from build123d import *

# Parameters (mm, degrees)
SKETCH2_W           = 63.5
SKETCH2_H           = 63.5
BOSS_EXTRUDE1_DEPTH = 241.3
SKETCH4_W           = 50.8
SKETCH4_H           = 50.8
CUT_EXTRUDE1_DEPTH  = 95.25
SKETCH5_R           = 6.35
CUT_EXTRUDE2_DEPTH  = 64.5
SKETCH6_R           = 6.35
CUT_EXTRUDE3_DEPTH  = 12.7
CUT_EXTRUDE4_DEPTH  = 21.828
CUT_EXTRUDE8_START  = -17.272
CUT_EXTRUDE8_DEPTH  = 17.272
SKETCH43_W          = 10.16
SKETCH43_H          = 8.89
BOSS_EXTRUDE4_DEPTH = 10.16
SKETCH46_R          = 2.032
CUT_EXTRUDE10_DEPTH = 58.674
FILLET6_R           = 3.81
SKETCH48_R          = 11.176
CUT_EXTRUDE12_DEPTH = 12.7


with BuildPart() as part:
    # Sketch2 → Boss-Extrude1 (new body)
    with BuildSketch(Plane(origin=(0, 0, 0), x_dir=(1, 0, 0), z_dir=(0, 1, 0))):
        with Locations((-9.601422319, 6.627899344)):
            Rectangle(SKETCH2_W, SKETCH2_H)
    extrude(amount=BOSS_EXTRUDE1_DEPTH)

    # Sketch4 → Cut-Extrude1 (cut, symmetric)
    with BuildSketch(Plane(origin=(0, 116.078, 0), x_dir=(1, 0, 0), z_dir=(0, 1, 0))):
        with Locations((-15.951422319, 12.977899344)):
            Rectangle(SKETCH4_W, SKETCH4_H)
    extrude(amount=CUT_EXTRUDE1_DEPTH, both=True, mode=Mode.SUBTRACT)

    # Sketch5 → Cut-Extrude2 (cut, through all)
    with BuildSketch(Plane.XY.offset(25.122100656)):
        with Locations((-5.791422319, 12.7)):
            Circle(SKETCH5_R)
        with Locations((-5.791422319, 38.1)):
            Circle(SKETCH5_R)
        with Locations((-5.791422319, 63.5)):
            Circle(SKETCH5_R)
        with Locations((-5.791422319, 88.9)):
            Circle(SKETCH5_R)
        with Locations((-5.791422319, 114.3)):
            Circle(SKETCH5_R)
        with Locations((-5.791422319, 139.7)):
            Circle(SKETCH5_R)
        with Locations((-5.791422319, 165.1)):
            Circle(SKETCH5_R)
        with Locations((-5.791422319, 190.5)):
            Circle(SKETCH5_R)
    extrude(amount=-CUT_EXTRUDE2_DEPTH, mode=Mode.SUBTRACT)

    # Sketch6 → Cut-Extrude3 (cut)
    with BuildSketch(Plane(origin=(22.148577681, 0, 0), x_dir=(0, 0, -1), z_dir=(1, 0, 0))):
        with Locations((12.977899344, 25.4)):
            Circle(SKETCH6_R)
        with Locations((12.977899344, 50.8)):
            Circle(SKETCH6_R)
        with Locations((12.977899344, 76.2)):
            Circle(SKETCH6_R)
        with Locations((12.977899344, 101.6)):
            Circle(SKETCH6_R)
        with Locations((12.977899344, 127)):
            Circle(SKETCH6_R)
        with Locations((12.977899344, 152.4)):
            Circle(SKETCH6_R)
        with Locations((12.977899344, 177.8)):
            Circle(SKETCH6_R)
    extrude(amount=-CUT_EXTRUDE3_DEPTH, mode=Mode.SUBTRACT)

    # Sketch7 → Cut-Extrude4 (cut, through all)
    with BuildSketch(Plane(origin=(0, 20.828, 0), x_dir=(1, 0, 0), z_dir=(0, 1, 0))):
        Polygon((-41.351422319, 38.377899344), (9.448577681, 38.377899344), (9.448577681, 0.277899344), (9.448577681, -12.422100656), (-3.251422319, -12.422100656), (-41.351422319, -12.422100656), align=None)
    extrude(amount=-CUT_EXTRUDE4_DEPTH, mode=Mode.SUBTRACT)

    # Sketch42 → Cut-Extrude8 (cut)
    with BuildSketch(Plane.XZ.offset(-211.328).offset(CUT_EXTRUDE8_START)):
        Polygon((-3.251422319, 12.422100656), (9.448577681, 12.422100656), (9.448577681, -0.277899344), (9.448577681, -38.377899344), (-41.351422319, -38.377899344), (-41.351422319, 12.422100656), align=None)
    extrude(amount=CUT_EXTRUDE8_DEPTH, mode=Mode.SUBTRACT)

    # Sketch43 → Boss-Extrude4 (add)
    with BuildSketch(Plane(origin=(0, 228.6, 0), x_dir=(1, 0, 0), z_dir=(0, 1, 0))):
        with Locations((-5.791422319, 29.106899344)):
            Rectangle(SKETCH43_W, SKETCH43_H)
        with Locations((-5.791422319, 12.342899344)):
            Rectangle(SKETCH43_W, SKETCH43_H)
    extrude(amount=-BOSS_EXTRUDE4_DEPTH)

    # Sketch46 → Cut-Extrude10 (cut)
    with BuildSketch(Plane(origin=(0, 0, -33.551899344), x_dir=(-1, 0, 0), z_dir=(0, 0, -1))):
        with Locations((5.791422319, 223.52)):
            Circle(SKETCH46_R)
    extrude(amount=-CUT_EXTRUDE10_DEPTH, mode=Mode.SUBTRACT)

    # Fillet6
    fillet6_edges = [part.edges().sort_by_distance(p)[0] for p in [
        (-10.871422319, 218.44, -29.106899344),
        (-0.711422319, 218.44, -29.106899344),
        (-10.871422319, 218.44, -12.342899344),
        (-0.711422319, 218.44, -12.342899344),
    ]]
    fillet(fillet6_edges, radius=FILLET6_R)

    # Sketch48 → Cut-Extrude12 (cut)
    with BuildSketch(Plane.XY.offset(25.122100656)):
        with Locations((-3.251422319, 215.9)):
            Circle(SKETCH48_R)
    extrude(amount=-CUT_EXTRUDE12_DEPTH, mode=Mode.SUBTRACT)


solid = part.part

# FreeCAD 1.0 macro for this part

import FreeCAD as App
import Part
import Sketcher

V = App.Vector
Q = App.Units.Quantity


def edges_at(feature, points):
    """Names of the edges that pass closest to the given points."""
    edges = feature.Shape.Edges
    near = lambda p: min(range(len(edges)), key=lambda i: edges[i].distToShape(Part.Vertex(*p))[0])
    return sorted({f"Edge{near(p) + 1}" for p in points})

doc = App.newDocument("Part")
params = doc.addObject("Spreadsheet::Sheet", "Params")
for row, (alias, value) in enumerate([
    ("sketch1_width", "2.5 in"),
    ("pad1_length", "9.5 in"),
    ("sketch2_width", "2 in"),
    ("pocket1_length", "7.5 in"),
    ("sketch3_diameter", "0.5 in"),
    ("sketch4_diameter", "0.5 in"),
    ("pocket3_length", "0.5 in"),
    ("sketch5_width", "2 in"),
    ("sketch6_width", "2 in"),
    ("pocket5_length", "0.68 in"),
    ("sketch7_width", "0.4 in"),
    ("sketch7_height", "0.35 in"),
    ("pad2_length", "0.4 in"),
    ("sketch8_diameter", "0.16 in"),
    ("pocket6_length", "2.31 in"),
    ("fillet_radius", "0.15 in"),
    ("sketch9_diameter", "0.88 in"),
    ("pocket7_length", "0.5 in"),
], start=1):
    params.set(f"A{row}", alias)
    params.set(f"B{row}", "=" + value)
    params.setAlias(f"B{row}", alias)

body = doc.addObject("PartDesign::Body", "Body")

# Sketch on XZ plane
sketch1 = doc.addObject("Sketcher::SketchObject", "Sketch")
body.addObject(sketch1)
sketch1.AttachmentSupport = (doc.XZ_Plane, [""])
sketch1.MapMode = "FlatFace"
sketch1.addGeometry([
    Part.LineSegment(V(-41, -38, 0), V(-41, 25, 0)),
    Part.LineSegment(V(-41, 25, 0), V(22, 25, 0)),
    Part.LineSegment(V(22, 25, 0), V(22, -38, 0)),
    Part.LineSegment(V(22, -38, 0), V(-41, -38, 0)),
], False)
sketch1.addConstraint([
    Sketcher.Constraint("Coincident", 0, 2, 1, 1),
    Sketcher.Constraint("Coincident", 1, 2, 2, 1),
    Sketcher.Constraint("Coincident", 2, 2, 3, 1),
    Sketcher.Constraint("Coincident", 3, 2, 0, 1),
    Sketcher.Constraint("Vertical", 0),
    Sketcher.Constraint("Horizontal", 1),
    Sketcher.Constraint("Vertical", 2),
    Sketcher.Constraint("Horizontal", 3),
    Sketcher.Constraint("Equal", 3, 0),
    Sketcher.Constraint("DistanceX", 1, 1, 1, 2, Q("2.5 in")),
    Sketcher.Constraint("DistanceY", -1, 1, 0, 2, Q("25.122101 mm")),
    Sketcher.Constraint("DistanceX", 0, 2, -1, 1, Q("41.351422 mm")),
])
sketch1.setExpression("Constraints[9]", "Params.sketch1_width")
pad1 = doc.addObject("PartDesign::Pad", "Pad")
body.addObject(pad1)
pad1.Profile = sketch1
pad1.setExpression("Length", "Params.pad1_length")
pad1.Reversed = True

# Sketch on XZ plane
sketch2 = doc.addObject("Sketcher::SketchObject", "Sketch001")
body.addObject(sketch2)
sketch2.AttachmentSupport = (doc.XZ_Plane, [""])
sketch2.MapMode = "FlatFace"
sketch2.AttachmentOffset = App.Placement(V(0, 0, -4.57 * 25.4), App.Rotation())
sketch2.addGeometry([
    Part.LineSegment(V(-41, -38, 0), V(-41, 12, 0)),
    Part.LineSegment(V(-41, 12, 0), V(9, 12, 0)),
    Part.LineSegment(V(9, 12, 0), V(9, -38, 0)),
    Part.LineSegment(V(9, -38, 0), V(-41, -38, 0)),
], False)
sketch2.addConstraint([
    Sketcher.Constraint("Coincident", 0, 2, 1, 1),
    Sketcher.Constraint("Coincident", 1, 2, 2, 1),
    Sketcher.Constraint("Coincident", 2, 2, 3, 1),
    Sketcher.Constraint("Coincident", 3, 2, 0, 1),
    Sketcher.Constraint("Vertical", 0),
    Sketcher.Constraint("Horizontal", 1),
    Sketcher.Constraint("Vertical", 2),
    Sketcher.Constraint("Horizontal", 3),
    Sketcher.Constraint("Equal", 3, 0),
    Sketcher.Constraint("DistanceX", 1, 1, 1, 2, Q("2 in")),
    Sketcher.Constraint("DistanceY", -1, 1, 0, 2, Q("12.422101 mm")),
    Sketcher.Constraint("DistanceX", 0, 2, -1, 1, Q("41.351422 mm")),
])
sketch2.setExpression("Constraints[9]", "Params.sketch2_width")
pocket1 = doc.addObject("PartDesign::Pocket", "Pocket")
body.addObject(pocket1)
pocket1.Profile = sketch2
pocket1.setExpression("Length", "Params.pocket1_length")
pocket1.Midplane = True

# Sketch on XY plane
sketch3 = doc.addObject("Sketcher::SketchObject", "Sketch002")
body.addObject(sketch3)
sketch3.AttachmentSupport = (doc.XY_Plane, [""])
sketch3.MapMode = "FlatFace"
sketch3.AttachmentOffset = App.Placement(V(0, 0, 25.122101), App.Rotation())
sketch3.addGeometry([
    Part.Circle(V(-6, 13, 0), V(0, 0, 1), 6),  # 0
    Part.Circle(V(-6, 38, 0), V(0, 0, 1), 6),  # 1
    Part.Circle(V(-6, 64, 0), V(0, 0, 1), 6),  # 2
    Part.Circle(V(-6, 89, 0), V(0, 0, 1), 6),  # 3
    Part.Circle(V(-6, 114, 0), V(0, 0, 1), 6),  # 4
    Part.Circle(V(-6, 140, 0), V(0, 0, 1), 6),  # 5
    Part.Circle(V(-6, 165, 0), V(0, 0, 1), 6),  # 6
    Part.Circle(V(-6, 190, 0), V(0, 0, 1), 6),  # 7
], False)
sketch3.addConstraint([
    Sketcher.Constraint("Equal", 0, 1),
    Sketcher.Constraint("Equal", 1, 2),
    Sketcher.Constraint("Equal", 2, 3),
    Sketcher.Constraint("Equal", 3, 4),
    Sketcher.Constraint("Equal", 4, 5),
    Sketcher.Constraint("Equal", 5, 6),
    Sketcher.Constraint("Equal", 6, 7),
    Sketcher.Constraint("Vertical", 0, 3, 1, 3),
    Sketcher.Constraint("Vertical", 1, 3, 2, 3),
    Sketcher.Constraint("Vertical", 2, 3, 3, 3),
    Sketcher.Constraint("Vertical", 3, 3, 4, 3),
    Sketcher.Constraint("Vertical", 4, 3, 5, 3),
    Sketcher.Constraint("Vertical", 5, 3, 6, 3),
    Sketcher.Constraint("Vertical", 6, 3, 7, 3),
    Sketcher.Constraint("Diameter", 0, Q("0.5 in")),
    Sketcher.Constraint("DistanceY", 0, 3, 1, 3, Q("1 in")),
    Sketcher.Constraint("DistanceY", 1, 3, 2, 3, Q("1 in")),
    Sketcher.Constraint("DistanceY", 2, 3, 3, 3, Q("1 in")),
    Sketcher.Constraint("DistanceY", 3, 3, 4, 3, Q("1 in")),
    Sketcher.Constraint("DistanceY", 4, 3, 5, 3, Q("1 in")),
    Sketcher.Constraint("DistanceY", 5, 3, 6, 3, Q("1 in")),
    Sketcher.Constraint("DistanceY", 6, 3, 7, 3, Q("1 in")),
    Sketcher.Constraint("DistanceY", -1, 1, 0, 3, Q("0.5 in")),
    Sketcher.Constraint("DistanceX", 0, 3, -1, 1, Q("5.791422 mm")),
])
sketch3.setExpression("Constraints[14]", "Params.sketch3_diameter")
pocket2 = doc.addObject("PartDesign::Pocket", "Pocket001")
body.addObject(pocket2)
pocket2.Profile = sketch3
pocket2.Type = "ThroughAll"

# Sketch on YZ plane
sketch4 = doc.addObject("Sketcher::SketchObject", "Sketch003")
body.addObject(sketch4)
sketch4.AttachmentSupport = (doc.YZ_Plane, [""])
sketch4.MapMode = "FlatFace"
sketch4.AttachmentOffset = App.Placement(V(0, 0, 22.148578), App.Rotation())
sketch4.addGeometry([
    Part.Circle(V(25, -13, 0), V(0, 0, 1), 6),  # 0
    Part.Circle(V(51, -13, 0), V(0, 0, 1), 6),  # 1
    Part.Circle(V(76, -13, 0), V(0, 0, 1), 6),  # 2
    Part.Circle(V(102, -13, 0), V(0, 0, 1), 6),  # 3
    Part.Circle(V(127, -13, 0), V(0, 0, 1), 6),  # 4
    Part.Circle(V(152, -13, 0), V(0, 0, 1), 6),  # 5
    Part.Circle(V(178, -13, 0), V(0, 0, 1), 6),  # 6
], False)
sketch4.addConstraint([
    Sketcher.Constraint("Equal", 0, 1),
    Sketcher.Constraint("Equal", 1, 2),
    Sketcher.Constraint("Equal", 2, 3),
    Sketcher.Constraint("Equal", 3, 4),
    Sketcher.Constraint("Equal", 4, 5),
    Sketcher.Constraint("Equal", 5, 6),
    Sketcher.Constraint("Horizontal", 0, 3, 1, 3),
    Sketcher.Constraint("Horizontal", 1, 3, 2, 3),
    Sketcher.Constraint("Horizontal", 2, 3, 3, 3),
    Sketcher.Constraint("Horizontal", 3, 3, 4, 3),
    Sketcher.Constraint("Horizontal", 4, 3, 5, 3),
    Sketcher.Constraint("Horizontal", 5, 3, 6, 3),
    Sketcher.Constraint("Diameter", 0, Q("0.5 in")),
    Sketcher.Constraint("DistanceX", -1, 1, 0, 3, Q("1 in")),
    Sketcher.Constraint("DistanceX", -1, 1, 1, 3, Q("2 in")),
    Sketcher.Constraint("DistanceX", -1, 1, 2, 3, Q("3 in")),
    Sketcher.Constraint("DistanceX", -1, 1, 3, 3, Q("4 in")),
    Sketcher.Constraint("DistanceX", -1, 1, 4, 3, Q("5 in")),
    Sketcher.Constraint("DistanceX", -1, 1, 5, 3, Q("6 in")),
    Sketcher.Constraint("DistanceX", -1, 1, 6, 3, Q("7 in")),
    Sketcher.Constraint("DistanceY", 0, 3, -1, 1, Q("12.977899 mm")),
])
sketch4.setExpression("Constraints[12]", "Params.sketch4_diameter")
pocket3 = doc.addObject("PartDesign::Pocket", "Pocket002")
body.addObject(pocket3)
pocket3.Profile = sketch4
pocket3.setExpression("Length", "Params.pocket3_length")

# Sketch on XZ plane
sketch5 = doc.addObject("Sketcher::SketchObject", "Sketch004")
body.addObject(sketch5)
sketch5.AttachmentSupport = (doc.XZ_Plane, [""])
sketch5.MapMode = "FlatFace"
sketch5.AttachmentOffset = App.Placement(V(0, 0, -0.82 * 25.4), App.Rotation())
sketch5.addGeometry([
    Part.LineSegment(V(9, -38, 0), V(-41, -38, 0)),
    Part.LineSegment(V(-41, -38, 0), V(-41, 12, 0)),
    Part.LineSegment(V(-41, 12, 0), V(9, 12, 0)),
    Part.LineSegment(V(9, 12, 0), V(9, -38, 0)),
], False)
sketch5.addConstraint([
    Sketcher.Constraint("Coincident", 0, 2, 1, 1),
    Sketcher.Constraint("Coincident", 1, 2, 2, 1),
    Sketcher.Constraint("Coincident", 2, 2, 3, 1),
    Sketcher.Constraint("Coincident", 3, 2, 0, 1),
    Sketcher.Constraint("Horizontal", 0),
    Sketcher.Constraint("Vertical", 1),
    Sketcher.Constraint("Horizontal", 2),
    Sketcher.Constraint("Vertical", 3),
    Sketcher.Constraint("Equal", 2, 1),
    Sketcher.Constraint("DistanceX", 0, 2, 0, 1, Q("2 in")),
    Sketcher.Constraint("DistanceY", 0, 2, -1, 1, Q("38.377899 mm")),
    Sketcher.Constraint("DistanceX", 0, 2, -1, 1, Q("41.351422 mm")),
])
sketch5.setExpression("Constraints[9]", "Params.sketch5_width")
pocket4 = doc.addObject("PartDesign::Pocket", "Pocket003")
body.addObject(pocket4)
pocket4.Profile = sketch5
pocket4.Type = "ThroughAll"
pocket4.Reversed = True

# Sketch on XZ plane
sketch6 = doc.addObject("Sketcher::SketchObject", "Sketch005")
body.addObject(sketch6)
sketch6.AttachmentSupport = (doc.XZ_Plane, [""])
sketch6.MapMode = "FlatFace"
sketch6.AttachmentOffset = App.Placement(V(0, 0, -9 * 25.4), App.Rotation())
sketch6.addGeometry([
    Part.LineSegment(V(9, 12, 0), V(-41, 12, 0)),
    Part.LineSegment(V(-41, 12, 0), V(-41, -38, 0)),
    Part.LineSegment(V(-41, -38, 0), V(9, -38, 0)),
    Part.LineSegment(V(9, -38, 0), V(9, 12, 0)),
], False)
sketch6.addConstraint([
    Sketcher.Constraint("Coincident", 0, 2, 1, 1),
    Sketcher.Constraint("Coincident", 1, 2, 2, 1),
    Sketcher.Constraint("Coincident", 2, 2, 3, 1),
    Sketcher.Constraint("Coincident", 3, 2, 0, 1),
    Sketcher.Constraint("Horizontal", 0),
    Sketcher.Constraint("Vertical", 1),
    Sketcher.Constraint("Horizontal", 2),
    Sketcher.Constraint("Vertical", 3),
    Sketcher.Constraint("Equal", 2, 1),
    Sketcher.Constraint("DistanceX", 0, 2, 0, 1, Q("2 in")),
    Sketcher.Constraint("DistanceY", -1, 1, 0, 2, Q("12.422101 mm")),
    Sketcher.Constraint("DistanceX", 0, 2, -1, 1, Q("41.351422 mm")),
])
sketch6.setExpression("Constraints[9]", "Params.sketch6_width")
pocket5 = doc.addObject("PartDesign::Pocket", "Pocket004")
body.addObject(pocket5)
pocket5.Profile = sketch6
pocket5.setExpression("Length", "Params.pocket5_length")
pocket5.Reversed = True

# Sketch on XZ plane
sketch7 = doc.addObject("Sketcher::SketchObject", "Sketch006")
body.addObject(sketch7)
sketch7.AttachmentSupport = (doc.XZ_Plane, [""])
sketch7.MapMode = "FlatFace"
sketch7.AttachmentOffset = App.Placement(V(0, 0, -9 * 25.4), App.Rotation())
sketch7.addGeometry([
    Part.LineSegment(V(-11, -34, 0), V(-11, -25, 0)),  # 0
    Part.LineSegment(V(-11, -25, 0), V(-1, -25, 0)),  # 1
    Part.LineSegment(V(-1, -25, 0), V(-1, -34, 0)),  # 2
    Part.LineSegment(V(-1, -34, 0), V(-11, -34, 0)),  # 3
    Part.LineSegment(V(-11, -17, 0), V(-11, -8, 0)),  # 4
    Part.LineSegment(V(-11, -8, 0), V(-1, -8, 0)),  # 5
    Part.LineSegment(V(-1, -8, 0), V(-1, -17, 0)),  # 6
    Part.LineSegment(V(-1, -17, 0), V(-11, -17, 0)),  # 7
], False)
sketch7.addConstraint([
    Sketcher.Constraint("Coincident", 0, 2, 1, 1),
    Sketcher.Constraint("Coincident", 1, 2, 2, 1),
    Sketcher.Constraint("Coincident", 2, 2, 3, 1),
    Sketcher.Constraint("Coincident", 3, 2, 0, 1),
    Sketcher.Constraint("Coincident", 4, 2, 5, 1),
    Sketcher.Constraint("Coincident", 5, 2, 6, 1),
    Sketcher.Constraint("Coincident", 6, 2, 7, 1),
    Sketcher.Constraint("Coincident", 7, 2, 4, 1),
    Sketcher.Constraint("Vertical", 0),
    Sketcher.Constraint("Horizontal", 1),
    Sketcher.Constraint("Vertical", 2),
    Sketcher.Constraint("Horizontal", 3),
    Sketcher.Constraint("Vertical", 4),
    Sketcher.Constraint("Horizontal", 5),
    Sketcher.Constraint("Vertical", 6),
    Sketcher.Constraint("Horizontal", 7),
    Sketcher.Constraint("Vertical", 3, 2, 4, 2),
    Sketcher.Constraint("Vertical", 2, 2, 5, 2),
    Sketcher.Constraint("Equal", 2, 4),
    Sketcher.Constraint("DistanceX", 1, 1, 1, 2, Q("0.4 in")),
    Sketcher.Constraint("DistanceY", 0, 1, 0, 2, Q("0.35 in")),
    Sketcher.Constraint("DistanceY", 0, 2, 4, 2, Q("0.66 in")),
    Sketcher.Constraint("DistanceY", 0, 2, -1, 1, Q("24.661899 mm")),
    Sketcher.Constraint("DistanceX", 0, 2, -1, 1, Q("10.871422 mm")),
])
sketch7.setExpression("Constraints[19]", "Params.sketch7_width")
sketch7.setExpression("Constraints[20]", "Params.sketch7_height")
pad2 = doc.addObject("PartDesign::Pad", "Pad001")
body.addObject(pad2)
pad2.Profile = sketch7
pad2.setExpression("Length", "Params.pad2_length")

# Sketch on XY plane
sketch8 = doc.addObject("Sketcher::SketchObject", "Sketch007")
body.addObject(sketch8)
sketch8.AttachmentSupport = (doc.XY_Plane, [""])
sketch8.MapMode = "FlatFace"
sketch8.AttachmentOffset = App.Placement(V(0, 0, -33.551899), App.Rotation())
sketch8.addGeometry(Part.Circle(V(-5.8, 223.5, 0), V(0, 0, 1), 2), False)
sketch8.addConstraint([
    Sketcher.Constraint("Diameter", 0, Q("0.16 in")),
    Sketcher.Constraint("DistanceY", -1, 1, 0, 3, Q("8.8 in")),
    Sketcher.Constraint("DistanceX", 0, 3, -1, 1, Q("5.791422 mm")),
])
sketch8.setExpression("Constraints[0]", "Params.sketch8_diameter")
pocket6 = doc.addObject("PartDesign::Pocket", "Pocket005")
body.addObject(pocket6)
pocket6.Profile = sketch8
pocket6.setExpression("Length", "Params.pocket6_length")
pocket6.Reversed = True
doc.recompute()

fillet = doc.addObject("PartDesign::Fillet", "Fillet")
body.addObject(fillet)
fillet.Base = (pocket6, edges_at(pocket6, [
    (-10.871, 218.44, -29.107),
    (-0.711, 218.44, -29.107),
    (-10.871, 218.44, -12.343),
    (-0.711, 218.44, -12.343),
]))
fillet.setExpression("Radius", "Params.fillet_radius")

# Sketch on XY plane
sketch9 = doc.addObject("Sketcher::SketchObject", "Sketch008")
body.addObject(sketch9)
sketch9.AttachmentSupport = (doc.XY_Plane, [""])
sketch9.MapMode = "FlatFace"
sketch9.AttachmentOffset = App.Placement(V(0, 0, 25.122101), App.Rotation())
sketch9.addGeometry(Part.Circle(V(-3, 216, 0), V(0, 0, 1), 11), False)
sketch9.addConstraint([
    Sketcher.Constraint("Diameter", 0, Q("0.88 in")),
    Sketcher.Constraint("DistanceY", -1, 1, 0, 3, Q("8.5 in")),
    Sketcher.Constraint("DistanceX", 0, 3, -1, 1, Q("3.251422 mm")),
])
sketch9.setExpression("Constraints[0]", "Params.sketch9_diameter")
pocket7 = doc.addObject("PartDesign::Pocket", "Pocket006")
body.addObject(pocket7)
pocket7.Profile = sketch9
pocket7.setExpression("Length", "Params.pocket7_length")

doc.recompute()
